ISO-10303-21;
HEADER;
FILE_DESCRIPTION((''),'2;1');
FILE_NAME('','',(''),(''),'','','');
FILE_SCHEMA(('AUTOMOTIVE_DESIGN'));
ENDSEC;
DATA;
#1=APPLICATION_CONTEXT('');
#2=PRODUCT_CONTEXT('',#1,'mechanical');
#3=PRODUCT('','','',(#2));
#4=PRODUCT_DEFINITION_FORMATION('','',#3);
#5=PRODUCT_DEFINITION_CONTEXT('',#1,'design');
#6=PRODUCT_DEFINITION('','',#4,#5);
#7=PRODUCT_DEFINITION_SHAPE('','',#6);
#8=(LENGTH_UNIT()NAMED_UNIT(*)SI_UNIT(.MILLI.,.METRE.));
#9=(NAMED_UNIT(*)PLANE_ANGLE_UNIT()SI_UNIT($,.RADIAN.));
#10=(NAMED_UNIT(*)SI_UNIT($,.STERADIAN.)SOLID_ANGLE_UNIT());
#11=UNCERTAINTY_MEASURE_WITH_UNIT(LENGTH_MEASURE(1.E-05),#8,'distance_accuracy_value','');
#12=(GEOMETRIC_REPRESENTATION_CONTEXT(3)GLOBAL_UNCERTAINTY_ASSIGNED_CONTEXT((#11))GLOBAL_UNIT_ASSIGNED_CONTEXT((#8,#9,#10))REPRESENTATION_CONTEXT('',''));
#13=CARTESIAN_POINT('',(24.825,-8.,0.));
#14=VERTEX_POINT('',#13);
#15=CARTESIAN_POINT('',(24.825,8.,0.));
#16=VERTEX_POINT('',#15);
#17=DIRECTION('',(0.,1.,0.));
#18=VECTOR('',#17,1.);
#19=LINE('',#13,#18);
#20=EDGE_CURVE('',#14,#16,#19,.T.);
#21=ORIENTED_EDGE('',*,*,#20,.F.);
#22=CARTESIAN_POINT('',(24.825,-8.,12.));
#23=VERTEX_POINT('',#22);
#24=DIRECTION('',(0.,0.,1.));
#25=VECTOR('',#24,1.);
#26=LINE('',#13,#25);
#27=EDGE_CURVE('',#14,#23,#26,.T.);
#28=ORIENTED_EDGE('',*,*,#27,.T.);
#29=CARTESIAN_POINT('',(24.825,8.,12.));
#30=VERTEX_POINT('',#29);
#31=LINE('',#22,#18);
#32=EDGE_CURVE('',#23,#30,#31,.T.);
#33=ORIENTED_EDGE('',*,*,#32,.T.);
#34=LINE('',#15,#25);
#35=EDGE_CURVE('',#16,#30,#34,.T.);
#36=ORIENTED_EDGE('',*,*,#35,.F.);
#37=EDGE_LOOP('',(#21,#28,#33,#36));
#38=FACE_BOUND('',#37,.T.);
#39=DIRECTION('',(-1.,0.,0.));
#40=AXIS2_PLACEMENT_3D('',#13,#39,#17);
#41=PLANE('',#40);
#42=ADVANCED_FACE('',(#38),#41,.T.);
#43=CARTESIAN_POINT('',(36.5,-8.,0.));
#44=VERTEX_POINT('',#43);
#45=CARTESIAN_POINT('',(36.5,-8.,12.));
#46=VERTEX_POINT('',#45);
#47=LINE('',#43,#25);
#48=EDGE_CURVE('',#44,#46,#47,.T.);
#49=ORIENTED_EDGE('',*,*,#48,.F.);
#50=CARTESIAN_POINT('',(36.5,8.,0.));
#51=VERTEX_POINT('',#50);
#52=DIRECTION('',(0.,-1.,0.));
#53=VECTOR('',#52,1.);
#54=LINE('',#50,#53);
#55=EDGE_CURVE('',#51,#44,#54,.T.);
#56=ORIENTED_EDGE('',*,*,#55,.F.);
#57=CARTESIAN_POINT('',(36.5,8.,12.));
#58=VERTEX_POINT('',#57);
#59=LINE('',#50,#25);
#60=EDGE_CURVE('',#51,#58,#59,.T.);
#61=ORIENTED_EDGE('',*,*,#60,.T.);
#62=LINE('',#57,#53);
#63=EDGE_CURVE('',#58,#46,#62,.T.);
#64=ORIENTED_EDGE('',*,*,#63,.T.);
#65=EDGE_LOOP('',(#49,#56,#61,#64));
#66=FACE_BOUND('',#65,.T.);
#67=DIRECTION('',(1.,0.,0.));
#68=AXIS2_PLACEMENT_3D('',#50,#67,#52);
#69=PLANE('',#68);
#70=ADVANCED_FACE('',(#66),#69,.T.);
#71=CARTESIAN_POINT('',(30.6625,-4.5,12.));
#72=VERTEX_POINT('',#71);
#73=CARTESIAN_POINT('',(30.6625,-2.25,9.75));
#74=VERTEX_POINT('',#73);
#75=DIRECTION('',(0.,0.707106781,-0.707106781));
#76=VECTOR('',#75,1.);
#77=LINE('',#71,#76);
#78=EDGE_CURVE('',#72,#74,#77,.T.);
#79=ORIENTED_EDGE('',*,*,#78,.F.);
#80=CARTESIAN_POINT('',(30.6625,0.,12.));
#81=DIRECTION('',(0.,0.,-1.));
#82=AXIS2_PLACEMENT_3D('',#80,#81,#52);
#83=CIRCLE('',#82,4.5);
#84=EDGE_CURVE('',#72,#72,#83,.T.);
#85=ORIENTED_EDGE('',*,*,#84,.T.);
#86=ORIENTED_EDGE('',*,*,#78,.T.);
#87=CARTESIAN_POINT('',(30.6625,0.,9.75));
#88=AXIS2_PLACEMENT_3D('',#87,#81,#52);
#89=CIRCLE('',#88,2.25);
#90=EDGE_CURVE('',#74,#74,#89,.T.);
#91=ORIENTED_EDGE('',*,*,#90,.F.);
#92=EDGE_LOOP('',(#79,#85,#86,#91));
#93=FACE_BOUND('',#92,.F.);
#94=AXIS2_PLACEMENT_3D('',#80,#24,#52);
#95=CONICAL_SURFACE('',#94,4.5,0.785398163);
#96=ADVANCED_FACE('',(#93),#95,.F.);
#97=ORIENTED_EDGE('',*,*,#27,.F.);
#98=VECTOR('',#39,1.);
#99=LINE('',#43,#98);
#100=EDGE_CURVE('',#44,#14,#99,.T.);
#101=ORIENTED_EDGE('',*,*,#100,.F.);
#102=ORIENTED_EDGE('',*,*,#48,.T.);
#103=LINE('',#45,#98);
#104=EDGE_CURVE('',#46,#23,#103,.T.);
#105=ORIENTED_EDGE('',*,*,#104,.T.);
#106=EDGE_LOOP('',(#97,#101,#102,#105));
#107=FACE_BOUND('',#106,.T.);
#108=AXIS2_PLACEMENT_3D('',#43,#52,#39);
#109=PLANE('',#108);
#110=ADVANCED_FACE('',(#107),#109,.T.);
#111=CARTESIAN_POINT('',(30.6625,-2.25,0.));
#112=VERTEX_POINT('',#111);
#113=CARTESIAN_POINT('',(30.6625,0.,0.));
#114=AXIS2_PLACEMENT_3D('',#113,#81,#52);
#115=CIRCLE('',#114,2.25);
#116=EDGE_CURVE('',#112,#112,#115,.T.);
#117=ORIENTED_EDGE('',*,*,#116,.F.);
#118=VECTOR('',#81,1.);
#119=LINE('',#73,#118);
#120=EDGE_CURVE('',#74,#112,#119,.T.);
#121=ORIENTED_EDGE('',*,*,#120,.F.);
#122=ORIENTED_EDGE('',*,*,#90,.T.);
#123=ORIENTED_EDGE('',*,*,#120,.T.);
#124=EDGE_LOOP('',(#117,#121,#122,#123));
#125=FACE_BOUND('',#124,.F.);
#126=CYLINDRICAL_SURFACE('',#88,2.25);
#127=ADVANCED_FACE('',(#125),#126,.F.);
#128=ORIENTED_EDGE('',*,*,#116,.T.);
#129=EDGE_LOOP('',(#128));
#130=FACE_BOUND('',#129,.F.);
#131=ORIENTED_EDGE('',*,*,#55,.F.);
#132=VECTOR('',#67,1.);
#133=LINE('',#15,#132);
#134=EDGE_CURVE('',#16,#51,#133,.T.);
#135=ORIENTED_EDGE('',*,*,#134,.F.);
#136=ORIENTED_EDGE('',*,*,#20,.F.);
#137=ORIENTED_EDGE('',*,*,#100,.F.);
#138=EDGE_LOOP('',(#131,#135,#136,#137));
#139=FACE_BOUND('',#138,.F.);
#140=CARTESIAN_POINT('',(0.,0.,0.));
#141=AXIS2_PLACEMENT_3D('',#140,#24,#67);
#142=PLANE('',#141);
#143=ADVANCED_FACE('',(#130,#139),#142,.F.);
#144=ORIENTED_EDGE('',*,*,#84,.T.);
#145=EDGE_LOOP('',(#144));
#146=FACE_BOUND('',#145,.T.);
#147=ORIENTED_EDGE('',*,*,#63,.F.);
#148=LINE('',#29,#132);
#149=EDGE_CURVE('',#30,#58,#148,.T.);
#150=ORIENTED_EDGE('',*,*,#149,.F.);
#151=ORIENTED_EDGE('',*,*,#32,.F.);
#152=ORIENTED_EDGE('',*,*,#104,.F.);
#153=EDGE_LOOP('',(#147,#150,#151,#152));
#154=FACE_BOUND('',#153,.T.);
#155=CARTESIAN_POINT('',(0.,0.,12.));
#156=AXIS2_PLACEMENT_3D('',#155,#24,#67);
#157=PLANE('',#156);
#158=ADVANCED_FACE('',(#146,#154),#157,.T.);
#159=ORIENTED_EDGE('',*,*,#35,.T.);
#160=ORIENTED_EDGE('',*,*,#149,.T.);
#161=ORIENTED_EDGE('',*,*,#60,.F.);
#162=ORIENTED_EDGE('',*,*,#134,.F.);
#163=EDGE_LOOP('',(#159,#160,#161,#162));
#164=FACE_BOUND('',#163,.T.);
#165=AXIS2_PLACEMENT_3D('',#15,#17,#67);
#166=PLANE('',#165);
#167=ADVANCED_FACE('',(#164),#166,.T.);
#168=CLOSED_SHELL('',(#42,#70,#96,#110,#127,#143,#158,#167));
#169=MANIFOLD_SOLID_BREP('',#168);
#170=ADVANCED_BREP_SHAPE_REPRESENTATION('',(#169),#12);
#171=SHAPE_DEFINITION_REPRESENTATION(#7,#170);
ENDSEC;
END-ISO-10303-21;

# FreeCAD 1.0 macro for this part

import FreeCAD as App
import Part
import Sketcher

V = App.Vector

doc = App.newDocument("Part")
params = doc.addObject("Spreadsheet::Sheet", "Params")
for row, (alias, value) in enumerate([
    ("sketch1_height", "16 mm"),
    ("pad1_length", "12 mm"),
    ("sketch2_diameter", "4.5 mm"),
    ("hole_diameter", "4.5 mm"),
    ("hole_csink_diameter", "9 mm"),
], start=1):
    params.set(f"A{row}", alias)
    params.set(f"B{row}", "=" + value)
    params.setAlias(f"B{row}", alias)

body = doc.addObject("PartDesign::Body", "Body")

# Sketch on XY plane
sketch1 = body.newObject("Sketcher::SketchObject", "Sketch")
sketch1.AttachmentSupport = (doc.getObject("XY_Plane"), [""])
sketch1.MapMode = "FlatFace"
sketch1.addGeometry([
    Part.LineSegment(V(25, -8, 0), V(36, -8, 0)),
    Part.LineSegment(V(36, -8, 0), V(36, 8, 0)),
    Part.LineSegment(V(36, 8, 0), V(25, 8, 0)),
    Part.LineSegment(V(25, 8, 0), V(25, -8, 0)),
], False)
sketch1.addConstraint([
    Sketcher.Constraint("Coincident", 0, 2, 1, 1),
    Sketcher.Constraint("Coincident", 1, 2, 2, 1),
    Sketcher.Constraint("Coincident", 2, 2, 3, 1),
    Sketcher.Constraint("Coincident", 3, 2, 0, 1),
    Sketcher.Constraint("Horizontal", 0),
    Sketcher.Constraint("Vertical", 1),
    Sketcher.Constraint("Horizontal", 2),
    Sketcher.Constraint("Vertical", 3),
    Sketcher.Constraint("DistanceY", 1, 1, 1, 2, 16.0),
    Sketcher.Constraint("DistanceX", 0, 1, 0, 2, 11.675),
    Sketcher.Constraint("DistanceY", 0, 2, -1, 1, 8.0),
    Sketcher.Constraint("DistanceX", -1, 1, 0, 2, 36.5),
])
sketch1.setExpression("Constraints[8]", "Params.sketch1_height")
pad1 = body.newObject("PartDesign::Pad", "Pad")
pad1.Profile = sketch1
pad1.setExpression("Length", "Params.pad1_length")

# Sketch on XY plane
sketch2 = body.newObject("Sketcher::SketchObject", "Sketch001")
sketch2.AttachmentSupport = (doc.getObject("XY_Plane"), [""])
sketch2.MapMode = "FlatFace"
sketch2.AttachmentOffset = App.Placement(V(0, 0, 12), App.Rotation())
sketch2.addGeometry(Part.Circle(V(30.7, 0, 0), V(0, 0, 1), 2.2), False)
sketch2.addConstraint([
    Sketcher.Constraint("PointOnObject", 0, 3, -1),
    Sketcher.Constraint("Diameter", 0, 4.5),
    Sketcher.Constraint("DistanceX", -1, 1, 0, 3, 30.6625),
])
sketch2.setExpression("Constraints[1]", "Params.sketch2_diameter")
doc.recompute()
hole = body.newObject("PartDesign::Hole", "Hole")
hole.Profile = sketch2
hole.ThreadType = "None"
hole.setExpression("Diameter", "Params.hole_diameter")
hole.DepthType = "ThroughAll"
hole.HoleCutType = "Countersink"
hole.setExpression("HoleCutDiameter", "Params.hole_csink_diameter")
hole.HoleCutCountersinkAngle = 90

doc.recompute()
